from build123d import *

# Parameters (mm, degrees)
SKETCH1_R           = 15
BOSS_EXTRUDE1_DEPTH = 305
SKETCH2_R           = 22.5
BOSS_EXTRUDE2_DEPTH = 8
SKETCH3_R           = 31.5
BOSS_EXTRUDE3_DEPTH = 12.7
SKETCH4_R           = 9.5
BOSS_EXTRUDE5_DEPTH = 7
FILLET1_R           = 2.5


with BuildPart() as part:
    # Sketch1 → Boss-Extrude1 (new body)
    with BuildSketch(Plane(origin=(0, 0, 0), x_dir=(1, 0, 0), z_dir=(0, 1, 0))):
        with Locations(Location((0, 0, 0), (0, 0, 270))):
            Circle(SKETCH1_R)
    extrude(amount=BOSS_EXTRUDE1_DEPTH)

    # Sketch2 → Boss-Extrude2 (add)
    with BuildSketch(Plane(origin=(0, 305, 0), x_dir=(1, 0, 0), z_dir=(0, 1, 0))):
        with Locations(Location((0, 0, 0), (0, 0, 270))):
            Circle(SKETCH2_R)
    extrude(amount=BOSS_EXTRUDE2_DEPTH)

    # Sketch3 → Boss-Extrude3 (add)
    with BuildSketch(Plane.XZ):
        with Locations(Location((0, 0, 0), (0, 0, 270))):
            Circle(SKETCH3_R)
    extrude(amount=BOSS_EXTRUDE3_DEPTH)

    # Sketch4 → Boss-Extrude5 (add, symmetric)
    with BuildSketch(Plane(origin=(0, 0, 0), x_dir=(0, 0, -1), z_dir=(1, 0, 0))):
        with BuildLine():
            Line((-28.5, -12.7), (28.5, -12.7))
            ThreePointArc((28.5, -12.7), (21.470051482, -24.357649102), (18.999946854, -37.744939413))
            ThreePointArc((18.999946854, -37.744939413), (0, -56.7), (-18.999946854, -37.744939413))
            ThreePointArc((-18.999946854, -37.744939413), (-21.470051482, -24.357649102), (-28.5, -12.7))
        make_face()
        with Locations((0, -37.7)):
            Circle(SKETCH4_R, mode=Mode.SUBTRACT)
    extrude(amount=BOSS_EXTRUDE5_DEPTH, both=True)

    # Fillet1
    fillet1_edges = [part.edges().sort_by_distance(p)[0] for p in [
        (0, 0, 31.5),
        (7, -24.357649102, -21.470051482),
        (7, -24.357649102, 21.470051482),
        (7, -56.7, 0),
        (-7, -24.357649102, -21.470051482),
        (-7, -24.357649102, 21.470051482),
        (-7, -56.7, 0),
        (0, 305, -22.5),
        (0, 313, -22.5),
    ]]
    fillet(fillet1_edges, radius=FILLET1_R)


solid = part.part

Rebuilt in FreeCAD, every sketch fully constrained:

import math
import FreeCAD as App
import Part
import Sketcher
from FreeCAD import Vector


def edges_at(feature, points):
    """Names of the edges that pass closest to the given points."""
    edges = feature.Shape.Edges
    near = lambda p: min(range(len(edges)), key=lambda i: edges[i].distToShape(Part.Vertex(*p))[0])
    return sorted({f"Edge{near(p) + 1}" for p in points})

doc = App.newDocument("Part")
body = doc.addObject("PartDesign::Body", "Body")

# Sketch on XZ plane
sketch1 = body.newObject("Sketcher::SketchObject", "Sketch")
sketch1.AttachmentSupport = (doc.getObject("XZ_Plane"), [""])
sketch1.MapMode = "FlatFace"
sketch1.addGeometry(Part.Circle(Vector(0, 0, 0), Vector(0, 0, 1), 15), False)
sketch1.addConstraint([
    Sketcher.Constraint("Coincident", 0, 3, -1, 1),
    Sketcher.Constraint("Diameter", 0, 30.0),
])
pad1 = body.newObject("PartDesign::Pad", "Pad")
pad1.Profile = sketch1
pad1.Length = 305
pad1.Reversed = True

# Sketch on XZ plane
sketch2 = body.newObject("Sketcher::SketchObject", "Sketch001")
sketch2.AttachmentSupport = (doc.getObject("XZ_Plane"), [""])
sketch2.MapMode = "FlatFace"
sketch2.AttachmentOffset = App.Placement(Vector(0, 0, -305), App.Rotation())
sketch2.addGeometry(Part.Circle(Vector(0, 0, 0), Vector(0, 0, 1), 22.5), False)
sketch2.addConstraint([
    Sketcher.Constraint("Coincident", 0, 3, -1, 1),
    Sketcher.Constraint("Diameter", 0, 45.0),
])
pad2 = body.newObject("PartDesign::Pad", "Pad001")
pad2.Profile = sketch2
pad2.Length = 8
pad2.Reversed = True

# Sketch on XZ plane
sketch3 = body.newObject("Sketcher::SketchObject", "Sketch002")
sketch3.AttachmentSupport = (doc.getObject("XZ_Plane"), [""])
sketch3.MapMode = "FlatFace"
sketch3.addGeometry(Part.Circle(Vector(0, 0, 0), Vector(0, 0, 1), 31.5), False)
sketch3.addConstraint([
    Sketcher.Constraint("Coincident", 0, 3, -1, 1),
    Sketcher.Constraint("Diameter", 0, 63.0),
])
pad3 = body.newObject("PartDesign::Pad", "Pad002")
pad3.Profile = sketch3
pad3.Length = 12.7

# Sketch on YZ plane
sketch4 = body.newObject("Sketcher::SketchObject", "Sketch003")
sketch4.AttachmentSupport = (doc.getObject("YZ_Plane"), [""])
sketch4.MapMode = "FlatFace"
sketch4.addGeometry([
    Part.LineSegment(Vector(-12.7, -28.5, 0), Vector(-12.7, 28.5, 0)),  # 0
    Part.ArcOfCircle(Part.Circle(Vector(-37.834818, 56.999841, 0), Vector(0, 0, 1), 38), math.radians(-89.864482), math.radians(-48.590014)),  # 1
    Part.ArcOfCircle(Part.Circle(Vector(-37.7, 0, 0), Vector(0, 0, 1), 19), math.radians(90.135518), math.radians(269.864482)),  # 2
    Part.ArcOfCircle(Part.Circle(Vector(-37.834818, -56.999841, 0), Vector(0, 0, 1), 38), math.radians(48.590014), math.radians(89.864482)),  # 3
    Part.Circle(Vector(-37.7, 0, 0), Vector(0, 0, 1), 9.5),  # 4
], False)
sketch4.addConstraint([
    Sketcher.Constraint("Coincident", 0, 2, 1, 2),
    Sketcher.Constraint("Tangent", 1, 1, 2, 1),
    Sketcher.Constraint("Tangent", 2, 2, 3, 2),
    Sketcher.Constraint("Coincident", 3, 1, 0, 1),
    Sketcher.Constraint("Vertical", 0),
    Sketcher.Constraint("Coincident", 4, 3, 2, 3),
    Sketcher.Constraint("Equal", 1, 3),
    Sketcher.Constraint("Symmetric", 1, 3, 3, 3, -1),
    Sketcher.Constraint("Diameter", 4, 19.0),
    Sketcher.Constraint("Radius", 1, 38.0),
    Sketcher.Constraint("Radius", 2, 19.0),
    Sketcher.Constraint("DistanceY", 0, 1, 0, 2, 57.0),
    Sketcher.Constraint("DistanceX", 2, 3, 0, 2, 25.0),
    Sketcher.Constraint("DistanceX", 2, 3, -1, 1, 37.7),
])
pad4 = body.newObject("PartDesign::Pad", "Pad003")
pad4.Profile = sketch4
pad4.Length = 14
pad4.Midplane = True
doc.recompute()

fillet = body.newObject("PartDesign::Fillet", "Fillet")
fillet.Base = (pad4, edges_at(pad4, [
    (0, 0, 31.5),
    (7, -24.358, -21.47),
    (7, -24.358, 21.47),
    (7, -56.7, 0),
    (-7, -24.358, -21.47),
    (-7, -24.358, 21.47),
    (-7, -56.7, 0),
    (0, 305, -22.5),
    (0, 313, -22.5),
]))
fillet.Radius = 2.5

doc.recompute()
